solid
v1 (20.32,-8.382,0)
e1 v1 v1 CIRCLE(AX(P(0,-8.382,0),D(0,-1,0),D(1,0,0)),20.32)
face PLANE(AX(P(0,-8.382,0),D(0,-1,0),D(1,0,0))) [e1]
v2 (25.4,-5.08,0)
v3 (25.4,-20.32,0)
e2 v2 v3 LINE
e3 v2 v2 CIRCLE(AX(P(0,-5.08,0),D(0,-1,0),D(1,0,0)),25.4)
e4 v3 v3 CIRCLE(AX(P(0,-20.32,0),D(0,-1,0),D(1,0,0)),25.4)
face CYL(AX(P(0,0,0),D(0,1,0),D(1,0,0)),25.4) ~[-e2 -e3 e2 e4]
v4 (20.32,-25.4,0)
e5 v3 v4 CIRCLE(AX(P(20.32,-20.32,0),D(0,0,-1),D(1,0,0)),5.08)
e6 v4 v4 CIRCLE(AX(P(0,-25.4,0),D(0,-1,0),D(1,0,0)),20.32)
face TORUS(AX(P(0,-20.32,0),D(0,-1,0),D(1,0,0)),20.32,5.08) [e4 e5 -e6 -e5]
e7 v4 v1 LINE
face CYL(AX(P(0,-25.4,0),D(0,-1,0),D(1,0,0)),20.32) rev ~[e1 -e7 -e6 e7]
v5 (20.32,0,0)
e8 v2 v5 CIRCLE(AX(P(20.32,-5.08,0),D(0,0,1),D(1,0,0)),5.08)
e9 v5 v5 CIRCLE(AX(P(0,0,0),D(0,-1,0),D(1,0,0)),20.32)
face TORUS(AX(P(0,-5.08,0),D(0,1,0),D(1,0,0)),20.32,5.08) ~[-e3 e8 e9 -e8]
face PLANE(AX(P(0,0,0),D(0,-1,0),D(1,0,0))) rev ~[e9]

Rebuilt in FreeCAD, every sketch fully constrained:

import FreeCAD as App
import Part
import Sketcher
from FreeCAD import Vector
Q = App.Units.Quantity

doc = App.newDocument("Part")
body = doc.addObject("PartDesign::Body", "Body")

sketch1 = body.newObject("Sketcher::SketchObject", "Sketch")
sketch1.AttachmentSupport = (doc.getObject("XZ_Plane"), [""])
sketch1.MapMode = "FlatFace"
sketch1.addGeometry(Part.Circle(Vector(0, 0, 0), Vector(0, 0, 1), 25), False)
sketch1.addConstraint([
    Sketcher.Constraint("Coincident", 0, 3, -1, 1),
    Sketcher.Constraint("Diameter", 0, Q("2 in")),
])
pad1 = body.newObject("PartDesign::Pad", "Pad")
pad1.Profile = sketch1
pad1.Length = Q("1 in")
doc.recompute()

fillet = body.newObject("PartDesign::Fillet", "Fillet")
fillet.Base = (pad1, ["Edge1"])
fillet.UseAllEdges = True
fillet.Radius = Q("0.2 in")

sketch2 = body.newObject("Sketcher::SketchObject", "Sketch001")
sketch2.AttachmentSupport = (doc.getObject("XZ_Plane"), [""])
sketch2.MapMode = "FlatFace"
sketch2.AttachmentOffset = App.Placement(Vector(0, 0, 1 * 25.4), App.Rotation())
sketch2.addGeometry(Part.Circle(Vector(0, 0, 0), Vector(0, 0, 1), 20), False)
sketch2.addConstraint([
    Sketcher.Constraint("Coincident", 0, 3, -1, 1),
    Sketcher.Constraint("Diameter", 0, Q("1.6 in")),
])
pocket1 = body.newObject("PartDesign::Pocket", "Pocket")
pocket1.Profile = sketch2
pocket1.Length = Q("0.67 in")

doc.recompute()
